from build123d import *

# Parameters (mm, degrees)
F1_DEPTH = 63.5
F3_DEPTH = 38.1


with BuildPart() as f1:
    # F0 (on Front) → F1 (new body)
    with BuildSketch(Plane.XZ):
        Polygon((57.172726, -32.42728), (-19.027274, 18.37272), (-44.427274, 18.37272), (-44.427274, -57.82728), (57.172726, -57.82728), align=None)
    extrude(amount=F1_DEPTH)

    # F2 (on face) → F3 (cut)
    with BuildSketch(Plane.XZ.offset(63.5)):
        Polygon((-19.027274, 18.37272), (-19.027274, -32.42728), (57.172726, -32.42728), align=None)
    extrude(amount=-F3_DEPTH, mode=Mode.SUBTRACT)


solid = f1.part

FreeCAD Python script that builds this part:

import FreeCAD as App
import Part
import Sketcher
from FreeCAD import Vector
Q = App.Units.Quantity

doc = App.newDocument("Part")
params = doc.addObject("Spreadsheet::Sheet", "Params")
for row, (alias, value) in enumerate([
    ("sketch1_width", "1 in"),
    ("sketch1_width2", "4 in"),
    ("sketch1_height", "3 in"),
    ("pad1_length", "2.5 in"),
    ("sketch2_width", "3 in"),
    ("sketch2_height", "2 in"),
    ("pocket1_length", "1.5 in"),
], start=1):
    params.set(f"A{row}", alias)
    params.set(f"B{row}", "=" + value)
    params.setAlias(f"B{row}", alias)

body = doc.addObject("PartDesign::Body", "Body")

sketch1 = body.newObject("Sketcher::SketchObject", "Sketch")
sketch1.AttachmentSupport = (doc.getObject("XZ_Plane"), [""])
sketch1.MapMode = "FlatFace"
sketch1.addGeometry([
    Part.LineSegment(Vector(57, -32, 0), Vector(-19, 18, 0)),
    Part.LineSegment(Vector(-19, 18, 0), Vector(-44, 18, 0)),
    Part.LineSegment(Vector(-44, 18, 0), Vector(-44, -58, 0)),
    Part.LineSegment(Vector(-44, -58, 0), Vector(57, -58, 0)),
    Part.LineSegment(Vector(57, -58, 0), Vector(57, -32, 0)),
], False)
sketch1.addConstraint([
    Sketcher.Constraint("Coincident", 0, 2, 1, 1),
    Sketcher.Constraint("Coincident", 1, 2, 2, 1),
    Sketcher.Constraint("Coincident", 2, 2, 3, 1),
    Sketcher.Constraint("Coincident", 3, 2, 4, 1),
    Sketcher.Constraint("Coincident", 4, 2, 0, 1),
    Sketcher.Constraint("Horizontal", 1),
    Sketcher.Constraint("Vertical", 2),
    Sketcher.Constraint("Horizontal", 3),
    Sketcher.Constraint("Vertical", 4),
    Sketcher.Constraint("Equal", 1, 4),
    Sketcher.Constraint("DistanceX", 1, 2, 1, 1, Q("1 in")),
    Sketcher.Constraint("DistanceX", 3, 1, 3, 2, Q("4 in")),
    Sketcher.Constraint("DistanceY", 2, 2, 2, 1, Q("3 in")),
    Sketcher.Constraint("DistanceY", -1, 1, 0, 2, Q("18.37272 mm")),
    Sketcher.Constraint("DistanceX", 0, 2, -1, 1, Q("19.027274 mm")),
])
sketch1.setExpression("Constraints[10]", "Params.sketch1_width")
sketch1.setExpression("Constraints[11]", "Params.sketch1_width2")
sketch1.setExpression("Constraints[12]", "Params.sketch1_height")
pad1 = body.newObject("PartDesign::Pad", "Pad")
pad1.Profile = sketch1
pad1.setExpression("Length", "Params.pad1_length")

sketch2 = body.newObject("Sketcher::SketchObject", "Sketch001")
sketch2.AttachmentSupport = (doc.getObject("XZ_Plane"), [""])
sketch2.MapMode = "FlatFace"
sketch2.AttachmentOffset = App.Placement(Vector(0, 0, 2.5 * 25.4), App.Rotation())
sketch2.addGeometry([
    Part.LineSegment(Vector(-19, 18, 0), Vector(-19, -32, 0)),
    Part.LineSegment(Vector(-19, -32, 0), Vector(57, -32, 0)),
    Part.LineSegment(Vector(57, -32, 0), Vector(-19, 18, 0)),
], False)
sketch2.addConstraint([
    Sketcher.Constraint("Coincident", 0, 2, 1, 1),
    Sketcher.Constraint("Coincident", 1, 2, 2, 1),
    Sketcher.Constraint("Coincident", 2, 2, 0, 1),
    Sketcher.Constraint("Vertical", 0),
    Sketcher.Constraint("Horizontal", 1),
    Sketcher.Constraint("DistanceX", 1, 1, 1, 2, Q("3 in")),
    Sketcher.Constraint("DistanceY", 0, 2, 0, 1, Q("2 in")),
    Sketcher.Constraint("DistanceY", 0, 2, -1, 1, Q("32.42728 mm")),
    Sketcher.Constraint("DistanceX", 0, 2, -1, 1, Q("19.027274 mm")),
])
sketch2.setExpression("Constraints[5]", "Params.sketch2_width")
sketch2.setExpression("Constraints[6]", "Params.sketch2_height")
pocket1 = body.newObject("PartDesign::Pocket", "Pocket")
pocket1.Profile = sketch2
pocket1.setExpression("Length", "Params.pocket1_length")

doc.recompute()
